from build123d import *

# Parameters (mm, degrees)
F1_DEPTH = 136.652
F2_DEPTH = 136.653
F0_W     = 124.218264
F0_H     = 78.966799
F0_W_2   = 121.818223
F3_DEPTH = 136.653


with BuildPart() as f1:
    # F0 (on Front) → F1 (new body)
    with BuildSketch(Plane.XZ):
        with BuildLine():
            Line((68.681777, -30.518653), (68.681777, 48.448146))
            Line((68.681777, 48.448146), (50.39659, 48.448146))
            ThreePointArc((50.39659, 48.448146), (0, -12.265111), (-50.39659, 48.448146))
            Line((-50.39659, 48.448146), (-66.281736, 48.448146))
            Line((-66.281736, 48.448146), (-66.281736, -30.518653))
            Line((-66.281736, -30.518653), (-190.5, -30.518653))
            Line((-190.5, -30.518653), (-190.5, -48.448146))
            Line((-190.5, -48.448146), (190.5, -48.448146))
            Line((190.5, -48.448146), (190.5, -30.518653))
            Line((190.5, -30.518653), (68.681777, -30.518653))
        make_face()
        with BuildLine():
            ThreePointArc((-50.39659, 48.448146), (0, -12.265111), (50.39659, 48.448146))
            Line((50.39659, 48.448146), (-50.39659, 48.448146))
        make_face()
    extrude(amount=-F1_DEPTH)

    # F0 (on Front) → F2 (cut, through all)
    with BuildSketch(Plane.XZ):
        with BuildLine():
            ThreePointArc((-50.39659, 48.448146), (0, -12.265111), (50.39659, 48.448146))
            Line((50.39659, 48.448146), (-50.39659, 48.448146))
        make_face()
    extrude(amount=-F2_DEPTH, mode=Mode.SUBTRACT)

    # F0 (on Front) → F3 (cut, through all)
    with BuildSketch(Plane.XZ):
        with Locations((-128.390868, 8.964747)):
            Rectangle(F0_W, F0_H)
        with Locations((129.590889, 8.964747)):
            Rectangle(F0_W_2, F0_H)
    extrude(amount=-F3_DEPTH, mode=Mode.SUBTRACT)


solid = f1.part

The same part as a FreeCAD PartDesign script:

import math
import FreeCAD as App
import Part
import Sketcher

V = App.Vector
Q = App.Units.Quantity

doc = App.newDocument("Part")
body = doc.addObject("PartDesign::Body", "Body")

# Sketch on XZ plane
sketch1 = body.newObject("Sketcher::SketchObject", "Sketch")
sketch1.AttachmentSupport = (doc.getObject("XZ_Plane"), [""])
sketch1.MapMode = "FlatFace"
sketch1.addGeometry([
    Part.LineSegment(V(69, -31, 0), V(69, 48, 0)),  # 0
    Part.LineSegment(V(69, 48, 0), V(-66, 48, 0)),  # 1
    Part.LineSegment(V(-66, 48, 0), V(-66, -31, 0)),  # 2
    Part.LineSegment(V(-66, -31, 0), V(-190, -31, 0)),  # 3
    Part.LineSegment(V(-190, -31, 0), V(-190, -48, 0)),  # 4
    Part.LineSegment(V(-190, -48, 0), V(190, -48, 0)),  # 5
    Part.LineSegment(V(190, -48, 0), V(190, -31, 0)),  # 6
    Part.LineSegment(V(190, -31, 0), V(69, -31, 0)),  # 7
], False)
sketch1.addConstraint([
    Sketcher.Constraint("Coincident", 0, 2, 1, 1),
    Sketcher.Constraint("Coincident", 1, 2, 2, 1),
    Sketcher.Constraint("Coincident", 2, 2, 3, 1),
    Sketcher.Constraint("Coincident", 3, 2, 4, 1),
    Sketcher.Constraint("Coincident", 4, 2, 5, 1),
    Sketcher.Constraint("Coincident", 5, 2, 6, 1),
    Sketcher.Constraint("Coincident", 6, 2, 7, 1),
    Sketcher.Constraint("Coincident", 7, 2, 0, 1),
    Sketcher.Constraint("Vertical", 0),
    Sketcher.Constraint("Horizontal", 1),
    Sketcher.Constraint("Vertical", 2),
    Sketcher.Constraint("Horizontal", 3),
    Sketcher.Constraint("Vertical", 4),
    Sketcher.Constraint("Horizontal", 5),
    Sketcher.Constraint("Vertical", 6),
    Sketcher.Constraint("Horizontal", 7),
    Sketcher.Constraint("Symmetric", 3, 2, 6, 2, -2),
    Sketcher.Constraint("DistanceX", 5, 1, 5, 2, Q("15 in")),
    Sketcher.Constraint("DistanceY", 0, 1, 0, 2, 78.966799),
    Sketcher.Constraint("DistanceX", 1, 2, 1, 1, 134.963513),
    Sketcher.Constraint("DistanceX", 3, 2, 3, 1, 124.218264),
    Sketcher.Constraint("DistanceY", 4, 2, 4, 1, 17.929493),
    Sketcher.Constraint("DistanceY", -1, 1, 0, 2, 48.448146),
])
pad1 = body.newObject("PartDesign::Pad", "Pad")
pad1.Profile = sketch1
pad1.Length = Q("5.38 in")
pad1.Reversed = True

# Sketch on XZ plane
sketch2 = body.newObject("Sketcher::SketchObject", "Sketch001")
sketch2.AttachmentSupport = (doc.getObject("XZ_Plane"), [""])
sketch2.MapMode = "FlatFace"
sketch2.addGeometry([
    Part.ArcOfCircle(Part.Circle(V(0, 39, 0), V(0, 0, 1), 51), math.radians(169), math.radians(371)),
    Part.LineSegment(V(50, 48, 0), V(-50, 48, 0)),
], False)
sketch2.addConstraint([
    Sketcher.Constraint("Coincident", 0, 1, 1, 2),
    Sketcher.Constraint("Coincident", 1, 1, 0, 2),
    Sketcher.Constraint("Horizontal", 1),
    Sketcher.Constraint("PointOnObject", 0, 3, -2),
    Sketcher.Constraint("Radius", 0, 51.273117),
    Sketcher.Constraint("DistanceX", 1, 2, 1, 1, 100.79318),
    Sketcher.Constraint("DistanceY", -1, 1, 0, 3, 39.008006),
])
pocket1 = body.newObject("PartDesign::Pocket", "Pocket")
pocket1.Profile = sketch2
pocket1.Type = "ThroughAll"

# Sketch on XZ plane
sketch3 = body.newObject("Sketcher::SketchObject", "Sketch002")
sketch3.AttachmentSupport = (doc.getObject("XZ_Plane"), [""])
sketch3.MapMode = "FlatFace"
sketch3.addGeometry([
    Part.LineSegment(V(-190, 48, 0), V(-190, -31, 0)),  # 0
    Part.LineSegment(V(-190, -31, 0), V(-66, -31, 0)),  # 1
    Part.LineSegment(V(-66, -31, 0), V(-66, 48, 0)),  # 2
    Part.LineSegment(V(-66, 48, 0), V(-190, 48, 0)),  # 3
    Part.LineSegment(V(69, 48, 0), V(69, -31, 0)),  # 4
    Part.LineSegment(V(69, -31, 0), V(191, -31, 0)),  # 5
    Part.LineSegment(V(191, -31, 0), V(191, 48, 0)),  # 6
    Part.LineSegment(V(191, 48, 0), V(69, 48, 0)),  # 7
], False)
sketch3.addConstraint([
    Sketcher.Constraint("Coincident", 0, 2, 1, 1),
    Sketcher.Constraint("Coincident", 1, 2, 2, 1),
    Sketcher.Constraint("Coincident", 2, 2, 3, 1),
    Sketcher.Constraint("Coincident", 3, 2, 0, 1),
    Sketcher.Constraint("Coincident", 4, 2, 5, 1),
    Sketcher.Constraint("Coincident", 5, 2, 6, 1),
    Sketcher.Constraint("Coincident", 6, 2, 7, 1),
    Sketcher.Constraint("Coincident", 7, 2, 4, 1),
    Sketcher.Constraint("Vertical", 0),
    Sketcher.Constraint("Horizontal", 1),
    Sketcher.Constraint("Vertical", 2),
    Sketcher.Constraint("Horizontal", 3),
    Sketcher.Constraint("Vertical", 4),
    Sketcher.Constraint("Horizontal", 5),
    Sketcher.Constraint("Vertical", 6),
    Sketcher.Constraint("Horizontal", 7),
    Sketcher.Constraint("Symmetric", 0, 2, 5, 2, -2),
    Sketcher.Constraint("Horizontal", 3, 2, 6, 2),
    Sketcher.Constraint("DistanceX", 0, 2, 5, 2, Q("15 in")),
    Sketcher.Constraint("DistanceY", 0, 2, 0, 1, 78.966799),
    Sketcher.Constraint("DistanceX", 1, 1, 1, 2, 124.218264),
    Sketcher.Constraint("DistanceX", 5, 1, 5, 2, 121.818223),
    Sketcher.Constraint("DistanceY", 0, 2, -1, 1, 30.518653),
])
pocket2 = body.newObject("PartDesign::Pocket", "Pocket001")
pocket2.Profile = sketch3
pocket2.Type = "ThroughAll"

doc.recompute()
